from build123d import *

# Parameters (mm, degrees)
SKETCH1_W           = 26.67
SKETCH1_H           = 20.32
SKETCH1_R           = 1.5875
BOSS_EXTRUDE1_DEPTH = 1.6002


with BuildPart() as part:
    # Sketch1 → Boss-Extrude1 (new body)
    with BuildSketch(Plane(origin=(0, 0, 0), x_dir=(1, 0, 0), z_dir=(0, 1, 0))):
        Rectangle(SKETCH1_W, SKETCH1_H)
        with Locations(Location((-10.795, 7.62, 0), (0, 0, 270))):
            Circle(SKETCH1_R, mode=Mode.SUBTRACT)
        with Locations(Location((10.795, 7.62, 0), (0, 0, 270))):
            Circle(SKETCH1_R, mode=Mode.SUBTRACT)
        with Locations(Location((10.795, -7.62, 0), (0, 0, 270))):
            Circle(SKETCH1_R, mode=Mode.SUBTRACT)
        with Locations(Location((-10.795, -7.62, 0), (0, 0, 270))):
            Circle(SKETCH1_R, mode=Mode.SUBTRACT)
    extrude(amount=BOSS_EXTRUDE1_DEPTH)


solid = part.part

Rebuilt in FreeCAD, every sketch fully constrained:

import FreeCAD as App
import Part
import Sketcher

V = App.Vector
Q = App.Units.Quantity

doc = App.newDocument("Part")
body = doc.addObject("PartDesign::Body", "Body")

# Sketch on XZ plane
sketch1 = doc.addObject("Sketcher::SketchObject", "Sketch")
body.addObject(sketch1)
sketch1.AttachmentSupport = (doc.XZ_Plane, [""])
sketch1.MapMode = "FlatFace"
sketch1.addGeometry([
    Part.LineSegment(V(-13.3, -10.2, 0), V(-13.3, 10.2, 0)),  # 0
    Part.LineSegment(V(-13.3, 10.2, 0), V(13.3, 10.2, 0)),  # 1
    Part.LineSegment(V(13.3, 10.2, 0), V(13.3, -10.2, 0)),  # 2
    Part.LineSegment(V(13.3, -10.2, 0), V(-13.3, -10.2, 0)),  # 3
    Part.Circle(V(-10.8, 7.6, 0), V(0, 0, 1), 1.6),  # 4
    Part.Circle(V(10.8, 7.6, 0), V(0, 0, 1), 1.6),  # 5
    Part.Circle(V(-10.8, -7.6, 0), V(0, 0, 1), 1.6),  # 6
    Part.Circle(V(10.8, -7.6, 0), V(0, 0, 1), 1.6),  # 7
], False)
sketch1.addConstraint([
    Sketcher.Constraint("Coincident", 0, 2, 1, 1),
    Sketcher.Constraint("Coincident", 1, 2, 2, 1),
    Sketcher.Constraint("Coincident", 2, 2, 3, 1),
    Sketcher.Constraint("Coincident", 3, 2, 0, 1),
    Sketcher.Constraint("Vertical", 0),
    Sketcher.Constraint("Horizontal", 1),
    Sketcher.Constraint("Vertical", 2),
    Sketcher.Constraint("Horizontal", 3),
    Sketcher.Constraint("Equal", 4, 5),
    Sketcher.Constraint("Equal", 5, 6),
    Sketcher.Constraint("Equal", 6, 7),
    Sketcher.Constraint("Symmetric", 5, 3, 6, 3, -1, 1),
    Sketcher.Constraint("Symmetric", 4, 3, 7, 3, -1, 1),
    Sketcher.Constraint("Symmetric", 0, 2, 2, 2, -1, 1),
    Sketcher.Constraint("Symmetric", 4, 3, 5, 3, -2),
    Sketcher.Constraint("Diameter", 4, Q("0.125 in")),
    Sketcher.Constraint("DistanceY", 0, 1, 0, 2, Q("0.8 in")),
    Sketcher.Constraint("DistanceX", 1, 1, 1, 2, Q("1.05 in")),
    Sketcher.Constraint("DistanceY", -1, 1, 4, 3, Q("0.3 in")),
    Sketcher.Constraint("DistanceX", 0, 2, 4, 3, Q("0.1 in")),
])
pad1 = doc.addObject("PartDesign::Pad", "Pad")
body.addObject(pad1)
pad1.Profile = sketch1
pad1.Length = Q("0.063 in")
pad1.Reversed = True

doc.recompute()
